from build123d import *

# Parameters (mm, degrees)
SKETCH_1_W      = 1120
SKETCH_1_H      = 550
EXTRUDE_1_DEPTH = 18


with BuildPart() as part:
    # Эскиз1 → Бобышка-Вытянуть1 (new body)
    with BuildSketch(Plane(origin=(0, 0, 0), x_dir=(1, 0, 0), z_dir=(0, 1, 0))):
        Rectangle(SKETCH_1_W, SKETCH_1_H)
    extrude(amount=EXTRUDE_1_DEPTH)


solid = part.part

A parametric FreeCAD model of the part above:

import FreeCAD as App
import Part
import Sketcher
Q = App.Units.Quantity


def add_polygon(sketch, points):
    """Adds a closed chain of lines whose ends are joined by coincident constraints."""
    first, n = sketch.GeometryCount, len(points)
    for a, b in zip(points, points[1:] + points[:1]):
        sketch.addGeometry(Part.LineSegment(App.Vector(*a, 0), App.Vector(*b, 0)), False)
    for i in range(n):
        sketch.addConstraint(Sketcher.Constraint("Coincident", first + i, 2, first + (i + 1) % n, 1))

doc = App.newDocument("Part")
body = doc.addObject("PartDesign::Body", "Body")

sketch1 = body.newObject("Sketcher::SketchObject", "Sketch")
sketch1.AttachmentSupport = (doc.getObject("XZ_Plane"), [""])
sketch1.MapMode = "FlatFace"
add_polygon(sketch1, [(-560, -275), (-560, 275), (560, 275), (560, -275)])
sketch1.addConstraint(Sketcher.Constraint("Vertical", 0))
sketch1.addConstraint(Sketcher.Constraint("Horizontal", 1))
sketch1.addConstraint(Sketcher.Constraint("Vertical", 2))
sketch1.addConstraint(Sketcher.Constraint("Horizontal", 3))
sketch1.addConstraint(Sketcher.Constraint("Symmetric", 0, 2, 2, 2, -1, 1))
sketch1.addConstraint(Sketcher.Constraint("DistanceX", 1, 1, 1, 2, Q("1120 mm")))
sketch1.addConstraint(Sketcher.Constraint("DistanceY", 0, 1, 0, 2, Q("550 mm")))
pad1 = body.newObject("PartDesign::Pad", "Pad")
pad1.Profile = sketch1
pad1.Length = 18
pad1.Reversed = True

doc.recompute()
